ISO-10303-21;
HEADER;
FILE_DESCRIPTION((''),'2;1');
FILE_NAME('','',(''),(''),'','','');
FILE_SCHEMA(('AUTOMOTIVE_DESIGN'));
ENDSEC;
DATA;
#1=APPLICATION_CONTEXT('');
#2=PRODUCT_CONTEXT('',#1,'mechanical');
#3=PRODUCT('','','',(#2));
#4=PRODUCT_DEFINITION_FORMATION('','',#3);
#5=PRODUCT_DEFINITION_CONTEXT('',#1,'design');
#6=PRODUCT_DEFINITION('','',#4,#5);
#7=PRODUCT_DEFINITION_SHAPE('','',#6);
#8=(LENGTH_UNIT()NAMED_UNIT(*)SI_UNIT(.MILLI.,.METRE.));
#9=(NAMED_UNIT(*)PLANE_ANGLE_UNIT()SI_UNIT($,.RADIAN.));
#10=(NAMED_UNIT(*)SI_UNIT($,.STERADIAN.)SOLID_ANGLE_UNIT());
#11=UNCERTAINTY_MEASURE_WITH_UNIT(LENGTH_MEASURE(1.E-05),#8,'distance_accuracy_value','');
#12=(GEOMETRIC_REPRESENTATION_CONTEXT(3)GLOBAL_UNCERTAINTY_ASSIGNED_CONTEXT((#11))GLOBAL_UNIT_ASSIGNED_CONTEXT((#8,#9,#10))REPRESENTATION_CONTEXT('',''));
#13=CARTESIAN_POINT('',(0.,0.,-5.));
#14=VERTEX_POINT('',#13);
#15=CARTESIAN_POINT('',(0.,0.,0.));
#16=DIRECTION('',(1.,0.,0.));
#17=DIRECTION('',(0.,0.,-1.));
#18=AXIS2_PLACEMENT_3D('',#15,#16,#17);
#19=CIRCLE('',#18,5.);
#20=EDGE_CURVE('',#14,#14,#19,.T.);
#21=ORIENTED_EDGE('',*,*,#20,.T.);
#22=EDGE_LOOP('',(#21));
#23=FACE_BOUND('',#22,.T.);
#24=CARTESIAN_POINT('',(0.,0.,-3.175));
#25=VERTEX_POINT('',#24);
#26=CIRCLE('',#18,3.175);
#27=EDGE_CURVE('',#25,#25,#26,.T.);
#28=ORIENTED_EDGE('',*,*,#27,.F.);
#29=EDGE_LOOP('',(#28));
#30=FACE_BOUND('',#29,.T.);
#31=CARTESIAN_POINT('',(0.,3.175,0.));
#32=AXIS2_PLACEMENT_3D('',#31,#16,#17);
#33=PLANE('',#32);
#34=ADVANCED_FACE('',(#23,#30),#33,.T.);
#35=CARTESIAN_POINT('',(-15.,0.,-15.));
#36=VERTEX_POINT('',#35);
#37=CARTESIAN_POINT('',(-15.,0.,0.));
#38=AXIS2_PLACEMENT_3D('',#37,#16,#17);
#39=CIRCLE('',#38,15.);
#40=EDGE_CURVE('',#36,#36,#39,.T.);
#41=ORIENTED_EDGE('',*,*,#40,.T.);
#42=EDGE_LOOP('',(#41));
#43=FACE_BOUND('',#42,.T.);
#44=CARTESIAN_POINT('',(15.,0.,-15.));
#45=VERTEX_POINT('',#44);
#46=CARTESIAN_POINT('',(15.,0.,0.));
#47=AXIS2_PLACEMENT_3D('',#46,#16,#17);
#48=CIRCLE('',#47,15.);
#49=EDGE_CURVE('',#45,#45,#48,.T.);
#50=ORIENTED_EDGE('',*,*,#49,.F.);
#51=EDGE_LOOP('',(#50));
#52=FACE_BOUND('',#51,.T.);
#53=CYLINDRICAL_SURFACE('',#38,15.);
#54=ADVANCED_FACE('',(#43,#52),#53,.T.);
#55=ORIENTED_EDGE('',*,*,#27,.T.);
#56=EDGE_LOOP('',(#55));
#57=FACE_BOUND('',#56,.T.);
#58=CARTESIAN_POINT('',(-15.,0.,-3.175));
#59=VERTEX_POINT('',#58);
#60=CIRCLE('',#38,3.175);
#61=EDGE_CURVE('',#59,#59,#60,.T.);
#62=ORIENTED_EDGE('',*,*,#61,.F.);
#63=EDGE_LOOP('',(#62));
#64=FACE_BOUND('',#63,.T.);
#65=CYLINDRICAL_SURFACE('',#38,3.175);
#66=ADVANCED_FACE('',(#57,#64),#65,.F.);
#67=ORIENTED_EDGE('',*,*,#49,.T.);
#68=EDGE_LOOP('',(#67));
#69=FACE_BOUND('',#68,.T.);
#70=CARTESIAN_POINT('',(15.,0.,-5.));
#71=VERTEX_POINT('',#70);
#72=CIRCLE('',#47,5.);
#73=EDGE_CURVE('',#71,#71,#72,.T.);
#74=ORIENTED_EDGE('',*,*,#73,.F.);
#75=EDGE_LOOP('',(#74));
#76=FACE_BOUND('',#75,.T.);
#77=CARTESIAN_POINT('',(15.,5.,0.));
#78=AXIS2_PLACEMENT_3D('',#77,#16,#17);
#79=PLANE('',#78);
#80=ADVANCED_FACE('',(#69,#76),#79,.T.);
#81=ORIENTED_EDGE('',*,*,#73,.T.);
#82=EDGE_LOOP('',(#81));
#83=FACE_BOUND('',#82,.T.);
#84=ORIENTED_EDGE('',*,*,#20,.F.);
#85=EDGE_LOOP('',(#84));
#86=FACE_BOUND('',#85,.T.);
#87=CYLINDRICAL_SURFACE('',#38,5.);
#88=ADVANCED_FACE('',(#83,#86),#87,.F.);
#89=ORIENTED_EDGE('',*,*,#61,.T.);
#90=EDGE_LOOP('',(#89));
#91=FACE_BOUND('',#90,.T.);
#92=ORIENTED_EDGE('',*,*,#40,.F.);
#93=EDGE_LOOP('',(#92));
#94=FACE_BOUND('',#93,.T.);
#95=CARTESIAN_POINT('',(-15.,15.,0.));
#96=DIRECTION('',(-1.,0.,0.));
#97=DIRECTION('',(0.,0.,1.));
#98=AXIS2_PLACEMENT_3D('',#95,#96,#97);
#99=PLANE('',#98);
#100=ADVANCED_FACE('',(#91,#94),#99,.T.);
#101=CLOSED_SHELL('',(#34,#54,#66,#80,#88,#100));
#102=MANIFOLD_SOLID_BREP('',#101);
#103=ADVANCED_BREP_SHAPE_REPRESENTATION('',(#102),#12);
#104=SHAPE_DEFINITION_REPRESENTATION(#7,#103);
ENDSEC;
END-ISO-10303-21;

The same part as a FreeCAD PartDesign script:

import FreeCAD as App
import Part
import Sketcher

V = App.Vector
Q = App.Units.Quantity

doc = App.newDocument("Part")
body = doc.addObject("PartDesign::Body", "Body")

# Sketch on XY plane
sketch1 = body.newObject("Sketcher::SketchObject", "Sketch")
sketch1.AttachmentSupport = (doc.getObject("XY_Plane"), [""])
sketch1.MapMode = "FlatFace"
sketch1.addGeometry([
    Part.LineSegment(V(0, 3.175, 0), V(0, 5, 0)),  # 0
    Part.LineSegment(V(0, 5, 0), V(15, 5, 0)),  # 1
    Part.LineSegment(V(15, 5, 0), V(15, 15, 0)),  # 2
    Part.LineSegment(V(15, 15, 0), V(-15, 15, 0)),  # 3
    Part.LineSegment(V(-15, 15, 0), V(-15, 3.175, 0)),  # 4
    Part.LineSegment(V(-15, 3.175, 0), V(0, 3.175, 0)),  # 5
], False)
sketch1.addConstraint([
    Sketcher.Constraint("Coincident", 0, 2, 1, 1),
    Sketcher.Constraint("Coincident", 1, 2, 2, 1),
    Sketcher.Constraint("Coincident", 2, 2, 3, 1),
    Sketcher.Constraint("Coincident", 3, 2, 4, 1),
    Sketcher.Constraint("Coincident", 4, 2, 5, 1),
    Sketcher.Constraint("Coincident", 5, 2, 0, 1),
    Sketcher.Constraint("Vertical", 0),
    Sketcher.Constraint("Horizontal", 1),
    Sketcher.Constraint("Vertical", 2),
    Sketcher.Constraint("Horizontal", 3),
    Sketcher.Constraint("Vertical", 4),
    Sketcher.Constraint("Horizontal", 5),
    Sketcher.Constraint("PointOnObject", 0, 2, -2),
    Sketcher.Constraint("Equal", 1, 5),
    Sketcher.Constraint("DistanceX", 1, 1, 1, 2, Q("15 mm")),
    Sketcher.Constraint("DistanceY", 2, 1, 2, 2, Q("10 mm")),
    Sketcher.Constraint("DistanceY", -1, 1, 0, 2, Q("5 mm")),
    Sketcher.Constraint("DistanceY", 0, 1, 0, 2, Q("1.825 mm")),
])
revolution = body.newObject("PartDesign::Revolution", "Revolution")
revolution.Profile = sketch1
revolution.ReferenceAxis = (sketch1, ["H_Axis"])
revolution.Angle = 360

doc.recompute()
